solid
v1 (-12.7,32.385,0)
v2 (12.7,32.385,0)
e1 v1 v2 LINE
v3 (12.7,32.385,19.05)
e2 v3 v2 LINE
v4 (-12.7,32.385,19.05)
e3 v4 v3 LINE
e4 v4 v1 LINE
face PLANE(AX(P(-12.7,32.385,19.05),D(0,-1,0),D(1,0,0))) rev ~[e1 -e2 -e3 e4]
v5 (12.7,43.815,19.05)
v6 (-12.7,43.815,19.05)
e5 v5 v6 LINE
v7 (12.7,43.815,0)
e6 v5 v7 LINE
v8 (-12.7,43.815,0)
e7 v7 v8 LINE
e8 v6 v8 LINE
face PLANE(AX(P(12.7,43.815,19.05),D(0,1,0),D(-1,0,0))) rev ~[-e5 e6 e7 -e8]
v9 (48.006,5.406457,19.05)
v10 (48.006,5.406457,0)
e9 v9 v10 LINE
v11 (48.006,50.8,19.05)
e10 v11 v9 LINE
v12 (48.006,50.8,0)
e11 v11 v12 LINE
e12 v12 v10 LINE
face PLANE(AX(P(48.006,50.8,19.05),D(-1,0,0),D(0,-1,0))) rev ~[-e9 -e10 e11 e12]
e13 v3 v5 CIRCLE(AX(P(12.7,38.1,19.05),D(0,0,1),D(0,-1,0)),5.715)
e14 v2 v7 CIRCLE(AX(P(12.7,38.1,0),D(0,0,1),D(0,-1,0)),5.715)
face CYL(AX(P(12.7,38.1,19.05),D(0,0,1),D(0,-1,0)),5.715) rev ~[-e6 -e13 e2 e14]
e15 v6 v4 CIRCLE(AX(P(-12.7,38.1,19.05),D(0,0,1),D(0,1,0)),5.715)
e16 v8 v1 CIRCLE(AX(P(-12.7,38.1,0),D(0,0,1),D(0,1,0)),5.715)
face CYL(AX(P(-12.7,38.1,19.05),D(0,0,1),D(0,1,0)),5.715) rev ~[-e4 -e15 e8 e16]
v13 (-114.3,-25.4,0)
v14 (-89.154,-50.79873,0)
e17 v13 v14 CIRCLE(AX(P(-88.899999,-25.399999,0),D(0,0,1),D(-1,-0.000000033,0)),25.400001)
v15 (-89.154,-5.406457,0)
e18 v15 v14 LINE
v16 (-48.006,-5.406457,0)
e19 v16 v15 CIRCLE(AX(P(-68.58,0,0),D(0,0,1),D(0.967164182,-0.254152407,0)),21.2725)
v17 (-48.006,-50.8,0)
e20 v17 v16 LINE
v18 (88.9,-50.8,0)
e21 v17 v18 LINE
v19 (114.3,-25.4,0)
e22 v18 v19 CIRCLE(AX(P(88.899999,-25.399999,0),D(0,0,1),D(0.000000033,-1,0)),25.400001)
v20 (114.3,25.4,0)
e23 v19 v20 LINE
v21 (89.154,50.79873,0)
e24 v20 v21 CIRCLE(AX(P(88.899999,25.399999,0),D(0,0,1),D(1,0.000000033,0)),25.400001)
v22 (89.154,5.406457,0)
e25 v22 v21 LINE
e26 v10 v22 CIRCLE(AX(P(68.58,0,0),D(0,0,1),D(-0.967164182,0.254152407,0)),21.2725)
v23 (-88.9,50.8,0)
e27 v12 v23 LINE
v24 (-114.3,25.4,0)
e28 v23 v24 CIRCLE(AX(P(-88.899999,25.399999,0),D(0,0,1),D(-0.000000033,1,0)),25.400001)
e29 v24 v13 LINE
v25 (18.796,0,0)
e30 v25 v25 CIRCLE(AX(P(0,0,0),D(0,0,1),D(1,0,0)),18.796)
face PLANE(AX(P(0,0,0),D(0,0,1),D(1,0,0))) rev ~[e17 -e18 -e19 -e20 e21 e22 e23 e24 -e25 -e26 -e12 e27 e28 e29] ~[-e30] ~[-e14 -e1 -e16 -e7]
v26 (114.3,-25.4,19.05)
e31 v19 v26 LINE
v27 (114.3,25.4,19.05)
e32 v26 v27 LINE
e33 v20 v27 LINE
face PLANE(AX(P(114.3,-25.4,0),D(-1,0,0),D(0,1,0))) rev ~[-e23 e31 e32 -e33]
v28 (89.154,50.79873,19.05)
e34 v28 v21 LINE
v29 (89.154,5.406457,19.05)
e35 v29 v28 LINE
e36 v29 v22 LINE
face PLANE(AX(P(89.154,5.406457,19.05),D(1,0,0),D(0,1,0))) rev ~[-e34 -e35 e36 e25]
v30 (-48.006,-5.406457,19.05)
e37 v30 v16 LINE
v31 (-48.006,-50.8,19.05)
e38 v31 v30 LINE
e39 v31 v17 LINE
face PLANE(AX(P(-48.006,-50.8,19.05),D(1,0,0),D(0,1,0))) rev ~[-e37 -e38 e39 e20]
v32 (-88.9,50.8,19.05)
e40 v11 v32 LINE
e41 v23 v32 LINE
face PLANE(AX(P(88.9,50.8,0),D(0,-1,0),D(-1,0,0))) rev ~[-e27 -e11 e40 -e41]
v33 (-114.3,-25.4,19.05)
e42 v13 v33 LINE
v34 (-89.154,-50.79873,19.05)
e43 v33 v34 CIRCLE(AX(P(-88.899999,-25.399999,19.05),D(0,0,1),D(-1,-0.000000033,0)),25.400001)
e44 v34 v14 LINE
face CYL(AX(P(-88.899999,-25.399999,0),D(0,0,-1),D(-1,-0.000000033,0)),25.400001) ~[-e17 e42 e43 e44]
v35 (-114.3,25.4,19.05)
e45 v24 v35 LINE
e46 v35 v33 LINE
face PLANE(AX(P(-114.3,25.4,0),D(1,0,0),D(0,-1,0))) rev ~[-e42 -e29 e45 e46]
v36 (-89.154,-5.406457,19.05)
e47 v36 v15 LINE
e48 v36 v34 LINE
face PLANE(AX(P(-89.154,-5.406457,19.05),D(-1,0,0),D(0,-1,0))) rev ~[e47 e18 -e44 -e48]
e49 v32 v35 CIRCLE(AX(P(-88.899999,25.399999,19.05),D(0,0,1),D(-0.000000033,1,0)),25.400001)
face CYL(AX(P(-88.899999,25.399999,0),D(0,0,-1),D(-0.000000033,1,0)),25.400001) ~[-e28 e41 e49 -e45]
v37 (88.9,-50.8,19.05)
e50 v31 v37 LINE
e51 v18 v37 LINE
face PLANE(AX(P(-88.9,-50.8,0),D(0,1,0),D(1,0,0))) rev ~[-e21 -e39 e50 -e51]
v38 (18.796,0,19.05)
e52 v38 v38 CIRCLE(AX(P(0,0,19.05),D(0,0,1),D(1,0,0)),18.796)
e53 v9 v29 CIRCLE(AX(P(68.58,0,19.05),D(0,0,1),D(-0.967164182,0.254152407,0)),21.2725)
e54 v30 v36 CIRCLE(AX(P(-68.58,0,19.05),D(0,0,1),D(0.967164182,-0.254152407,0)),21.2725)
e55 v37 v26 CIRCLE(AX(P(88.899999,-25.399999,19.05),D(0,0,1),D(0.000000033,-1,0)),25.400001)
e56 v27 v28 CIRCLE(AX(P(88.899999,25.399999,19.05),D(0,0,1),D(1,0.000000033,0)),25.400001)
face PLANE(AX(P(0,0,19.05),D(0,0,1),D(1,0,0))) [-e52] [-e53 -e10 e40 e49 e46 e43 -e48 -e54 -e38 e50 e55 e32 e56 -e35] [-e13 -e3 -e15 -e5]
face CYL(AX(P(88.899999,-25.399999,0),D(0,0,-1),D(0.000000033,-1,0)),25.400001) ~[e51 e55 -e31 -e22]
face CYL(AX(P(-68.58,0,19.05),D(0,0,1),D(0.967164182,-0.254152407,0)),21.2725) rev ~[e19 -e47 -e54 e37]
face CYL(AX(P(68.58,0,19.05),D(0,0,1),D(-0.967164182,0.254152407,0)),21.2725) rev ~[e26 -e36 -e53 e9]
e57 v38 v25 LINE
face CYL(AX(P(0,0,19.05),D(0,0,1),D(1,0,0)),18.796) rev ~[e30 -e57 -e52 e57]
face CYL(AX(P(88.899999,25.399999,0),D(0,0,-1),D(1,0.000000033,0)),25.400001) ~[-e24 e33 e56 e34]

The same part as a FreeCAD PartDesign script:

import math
import FreeCAD as App
import Part
import Sketcher

V = App.Vector
Q = App.Units.Quantity

doc = App.newDocument("Part")
body = doc.addObject("PartDesign::Body", "Body")

sketch1 = body.newObject("Sketcher::SketchObject", "Sketch")
sketch1.AttachmentSupport = (doc.getObject("XY_Plane"), [""])
sketch1.MapMode = "FlatFace"
sketch1.addGeometry([
    Part.ArcOfCircle(Part.Circle(V(89, 25, 0), V(0, 0, 1), 25), math.radians(0), math.radians(90)),
    Part.LineSegment(V(89, 51, 0), V(-89, 51, 0)),
    Part.ArcOfCircle(Part.Circle(V(-89, 25, 0), V(0, 0, 1), 25), math.radians(90), math.radians(180)),
    Part.LineSegment(V(-114, 25, 0), V(-114, -25, 0)),
    Part.ArcOfCircle(Part.Circle(V(-89, -25, 0), V(0, 0, 1), 25), math.radians(-180), math.radians(-90)),
    Part.LineSegment(V(-89, -51, 0), V(89, -51, 0)),
    Part.ArcOfCircle(Part.Circle(V(89, -25, 0), V(0, 0, 1), 25), math.radians(-90), math.radians(0)),
    Part.LineSegment(V(114, -25, 0), V(114, 25, 0)),
], False)
sketch1.addConstraint([
    Sketcher.Constraint("Tangent", 0, 2, 1, 1),
    Sketcher.Constraint("Tangent", 1, 2, 2, 1),
    Sketcher.Constraint("Tangent", 2, 2, 3, 1),
    Sketcher.Constraint("Tangent", 3, 2, 4, 1),
    Sketcher.Constraint("Tangent", 4, 2, 5, 1),
    Sketcher.Constraint("Tangent", 5, 2, 6, 1),
    Sketcher.Constraint("Tangent", 6, 2, 7, 1),
    Sketcher.Constraint("Tangent", 7, 2, 0, 1),
    Sketcher.Constraint("Horizontal", 1),
    Sketcher.Constraint("Vertical", 3),
    Sketcher.Constraint("Horizontal", 5),
    Sketcher.Constraint("Vertical", 7),
    Sketcher.Constraint("Equal", 0, 2),
    Sketcher.Constraint("Equal", 2, 4),
    Sketcher.Constraint("Equal", 4, 6),
    Sketcher.Constraint("Symmetric", 0, 3, 4, 3, -1, 1),
    Sketcher.Constraint("Radius", 0, Q("1 in")),
    Sketcher.Constraint("DistanceX", 1, 2, 1, 1, Q("7 in")),
    Sketcher.Constraint("DistanceY", 3, 2, 3, 1, Q("2 in")),
])
pad1 = body.newObject("PartDesign::Pad", "Pad")
pad1.Profile = sketch1
pad1.Length = Q("0.75 in")

sketch2 = body.newObject("Sketcher::SketchObject", "Sketch001")
sketch2.AttachmentSupport = (doc.getObject("XY_Plane"), [""])
sketch2.MapMode = "FlatFace"
sketch2.AttachmentOffset = App.Placement(V(0, 0, 0.75 * 25.4), App.Rotation())
sketch2.addGeometry(Part.Circle(V(0, 0, 0), V(0, 0, 1), 19), False)
sketch2.addConstraint([
    Sketcher.Constraint("Coincident", 0, 3, -1, 1),
    Sketcher.Constraint("Diameter", 0, Q("1.48 in")),
])
pocket1 = body.newObject("PartDesign::Pocket", "Pocket")
pocket1.Profile = sketch2
pocket1.Type = "ThroughAll"

sketch3 = body.newObject("Sketcher::SketchObject", "Sketch002")
sketch3.AttachmentSupport = (doc.getObject("XY_Plane"), [""])
sketch3.MapMode = "FlatFace"
sketch3.AttachmentOffset = App.Placement(V(0, 0, 0.75 * 25.4), App.Rotation())
sketch3.addGeometry([
    Part.LineSegment(V(-48, -51, 0), V(-48, -5, 0)),
    Part.ArcOfCircle(Part.Circle(V(-69, 0, 0), V(0, 0, 1), 21), math.radians(-15), math.radians(195)),
    Part.LineSegment(V(-89, -5, 0), V(-89, -51, 0)),
    Part.LineSegment(V(-89, -51, 0), V(-48, -51, 0)),
    Part.ArcOfCircle(Part.Circle(V(69, 0, 0), V(0, 0, 1), 21), math.radians(165), math.radians(375)),
    Part.LineSegment(V(89, 5, 0), V(89, 51, 0)),
    Part.LineSegment(V(89, 51, 0), V(48, 51, 0)),
    Part.LineSegment(V(48, 51, 0), V(48, 5, 0)),
], False)
sketch3.addConstraint([
    Sketcher.Constraint("Coincident", 0, 2, 1, 1),
    Sketcher.Constraint("Coincident", 1, 2, 2, 1),
    Sketcher.Constraint("Coincident", 2, 2, 3, 1),
    Sketcher.Constraint("Coincident", 3, 2, 0, 1),
    Sketcher.Constraint("Coincident", 4, 2, 5, 1),
    Sketcher.Constraint("Coincident", 5, 2, 6, 1),
    Sketcher.Constraint("Coincident", 6, 2, 7, 1),
    Sketcher.Constraint("Coincident", 7, 2, 4, 1),
    Sketcher.Constraint("Vertical", 0),
    Sketcher.Constraint("Vertical", 2),
    Sketcher.Constraint("Horizontal", 3),
    Sketcher.Constraint("Vertical", 5),
    Sketcher.Constraint("Horizontal", 6),
    Sketcher.Constraint("Vertical", 7),
    Sketcher.Constraint("Equal", 1, 4),
    Sketcher.Constraint("Symmetric", 1, 3, 4, 3, -1, 1),
    Sketcher.Constraint("Symmetric", 2, 2, 5, 2, -1, 1),
    Sketcher.Constraint("PointOnObject", 1, 3, -1),
    Sketcher.Constraint("Horizontal", 0, 2, 1, 2),
    Sketcher.Constraint("Horizontal", 4, 2, 7, 2),
    Sketcher.Constraint("DistanceY", 2, 2, -1, 1, Q("2 in")),
    Sketcher.Constraint("DistanceX", 3, 1, 3, 2, Q("1.62 in")),
    Sketcher.Constraint("DistanceX", 1, 3, -1, 1, Q("2.7 in")),
    Sketcher.Constraint("Radius", 1, Q("0.8375 in")),
])
pocket2 = body.newObject("PartDesign::Pocket", "Pocket001")
pocket2.Profile = sketch3
pocket2.Type = "ThroughAll"

sketch4 = body.newObject("Sketcher::SketchObject", "Sketch003")
sketch4.AttachmentSupport = (doc.getObject("XY_Plane"), [""])
sketch4.MapMode = "FlatFace"
sketch4.AttachmentOffset = App.Placement(V(0, 0, 0.75 * 25.4), App.Rotation())
sketch4.addGeometry([
    Part.ArcOfCircle(Part.Circle(V(-13, 38, 0), V(0, 0, 1), 6), math.radians(90), math.radians(270)),
    Part.LineSegment(V(-13, 32, 0), V(13, 32, 0)),
    Part.ArcOfCircle(Part.Circle(V(13, 38, 0), V(0, 0, 1), 6), math.radians(-90), math.radians(90)),
    Part.LineSegment(V(13, 44, 0), V(-13, 44, 0)),
], False)
sketch4.addConstraint([
    Sketcher.Constraint("Tangent", 0, 2, 1, 1),
    Sketcher.Constraint("Tangent", 1, 2, 2, 1),
    Sketcher.Constraint("Tangent", 2, 2, 3, 1),
    Sketcher.Constraint("Tangent", 3, 2, 0, 1),
    Sketcher.Constraint("Horizontal", 1),
    Sketcher.Constraint("Horizontal", 3),
    Sketcher.Constraint("DistanceX", 1, 1, 1, 2, Q("1 in")),
    Sketcher.Constraint("Radius", 0, Q("0.225 in")),
    Sketcher.Constraint("DistanceX", 0, 3, -1, 1, Q("0.5 in")),
    Sketcher.Constraint("DistanceY", -1, 1, 0, 3, Q("1.5 in")),
])
pocket3 = body.newObject("PartDesign::Pocket", "Pocket002")
pocket3.Profile = sketch4
pocket3.Type = "ThroughAll"

doc.recompute()
